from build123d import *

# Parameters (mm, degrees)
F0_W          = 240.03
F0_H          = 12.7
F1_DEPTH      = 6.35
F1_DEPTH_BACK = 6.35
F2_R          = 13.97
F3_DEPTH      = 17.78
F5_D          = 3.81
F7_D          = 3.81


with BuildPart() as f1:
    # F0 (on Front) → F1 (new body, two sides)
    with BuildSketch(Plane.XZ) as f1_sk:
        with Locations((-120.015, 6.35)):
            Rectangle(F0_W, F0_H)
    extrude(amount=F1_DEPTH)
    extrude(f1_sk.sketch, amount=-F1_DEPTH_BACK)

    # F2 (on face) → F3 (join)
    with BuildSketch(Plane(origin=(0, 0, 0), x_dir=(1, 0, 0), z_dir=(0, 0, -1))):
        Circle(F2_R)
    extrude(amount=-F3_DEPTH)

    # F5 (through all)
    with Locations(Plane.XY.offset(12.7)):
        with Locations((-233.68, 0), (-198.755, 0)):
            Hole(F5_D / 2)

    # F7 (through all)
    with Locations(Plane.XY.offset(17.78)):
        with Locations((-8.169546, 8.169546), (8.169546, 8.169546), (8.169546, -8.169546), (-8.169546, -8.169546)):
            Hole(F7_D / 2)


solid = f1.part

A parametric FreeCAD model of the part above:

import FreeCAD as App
import Part
import Sketcher
from FreeCAD import Vector
Q = App.Units.Quantity


def add_polygon(sketch, points):
    """Adds a closed chain of lines whose ends are joined by coincident constraints."""
    first, n = sketch.GeometryCount, len(points)
    for a, b in zip(points, points[1:] + points[:1]):
        sketch.addGeometry(Part.LineSegment(App.Vector(*a, 0), App.Vector(*b, 0)), False)
    for i in range(n):
        sketch.addConstraint(Sketcher.Constraint("Coincident", first + i, 2, first + (i + 1) % n, 1))

doc = App.newDocument("Part")
body = doc.addObject("PartDesign::Body", "Body")

# Sketch on XZ plane
sketch1 = doc.addObject("Sketcher::SketchObject", "Sketch")
body.addObject(sketch1)
sketch1.AttachmentSupport = (doc.XZ_Plane, [""])
sketch1.MapMode = "FlatFace"
add_polygon(sketch1, [(-240.03, 12.7), (-240.03, 0), (0, 0), (0, 12.7)])  # lines 0-3
sketch1.addConstraint(Sketcher.Constraint("Vertical", 0))
sketch1.addConstraint(Sketcher.Constraint("Horizontal", 1))
sketch1.addConstraint(Sketcher.Constraint("Vertical", 2))
sketch1.addConstraint(Sketcher.Constraint("Horizontal", 3))
sketch1.addConstraint(Sketcher.Constraint("Coincident", 1, 2, -1, 1))
sketch1.addConstraint(Sketcher.Constraint("DistanceY", 0, 2, 0, 1, Q("0.5 in")))
sketch1.addConstraint(Sketcher.Constraint("DistanceX", 1, 1, 1, 2, Q("9.45 in")))
pad1 = doc.addObject("PartDesign::Pad", "Pad")
body.addObject(pad1)
pad1.Profile = sketch1
pad1.Type = "TwoLengths"
pad1.Length = Q("0.25 in")
pad1.Length2 = Q("0.25 in")

# Sketch on XY plane
sketch2 = doc.addObject("Sketcher::SketchObject", "Sketch001")
body.addObject(sketch2)
sketch2.AttachmentSupport = (doc.XY_Plane, [""])
sketch2.MapMode = "FlatFace"
sketch2.addGeometry(Part.Circle(Vector(0, 0, 0), Vector(0, 0, 1), 13.97), False)
sketch2.addConstraint(Sketcher.Constraint("Coincident", 0, 3, -1, 1))
sketch2.addConstraint(Sketcher.Constraint("Diameter", 0, Q("1.1 in")))
pad2 = doc.addObject("PartDesign::Pad", "Pad001")
body.addObject(pad2)
pad2.Profile = sketch2
pad2.Length = Q("0.7 in")

# Sketch on XY plane
sketch3 = doc.addObject("Sketcher::SketchObject", "Sketch002")
body.addObject(sketch3)
sketch3.AttachmentSupport = (doc.XY_Plane, [""])
sketch3.MapMode = "FlatFace"
sketch3.AttachmentOffset = App.Placement(Vector(0, 0, 0.5 * 25.4), App.Rotation())
sketch3.addGeometry(Part.Circle(Vector(-233.68, 0, 0), Vector(0, 0, 1), 1.905), False)
sketch3.addGeometry(Part.Circle(Vector(-198.755, 0, 0), Vector(0, 0, 1), 1.905), False)
sketch3.addConstraint(Sketcher.Constraint("Equal", 0, 1))
sketch3.addConstraint(Sketcher.Constraint("PointOnObject", 0, 3, -1))
sketch3.addConstraint(Sketcher.Constraint("PointOnObject", 1, 3, -1))
sketch3.addConstraint(Sketcher.Constraint("Diameter", 0, Q("0.15 in")))
sketch3.addConstraint(Sketcher.Constraint("DistanceX", 0, 3, -1, 1, Q("9.2 in")))
sketch3.addConstraint(Sketcher.Constraint("DistanceX", 1, 3, -1, 1, Q("7.825 in")))
doc.recompute()
hole = doc.addObject("PartDesign::Hole", "Hole")
body.addObject(hole)
hole.Profile = sketch3
hole.ThreadType = "None"
hole.Diameter = Q("0.15 in")
hole.DepthType = "ThroughAll"

# Sketch on XY plane
sketch4 = doc.addObject("Sketcher::SketchObject", "Sketch003")
body.addObject(sketch4)
sketch4.AttachmentSupport = (doc.XY_Plane, [""])
sketch4.MapMode = "FlatFace"
sketch4.AttachmentOffset = App.Placement(Vector(0, 0, 0.7 * 25.4), App.Rotation())
sketch4.addGeometry(Part.Circle(Vector(-8.169546, 8.169546, 0), Vector(0, 0, 1), 1.905), False)
sketch4.addGeometry(Part.Circle(Vector(8.169546, 8.169546, 0), Vector(0, 0, 1), 1.905), False)
sketch4.addGeometry(Part.Circle(Vector(8.169546, -8.169546, 0), Vector(0, 0, 1), 1.905), False)
sketch4.addGeometry(Part.Circle(Vector(-8.169546, -8.169546, 0), Vector(0, 0, 1), 1.905), False)
sketch4.addConstraint(Sketcher.Constraint("Equal", 0, 1))
sketch4.addConstraint(Sketcher.Constraint("Equal", 1, 2))
sketch4.addConstraint(Sketcher.Constraint("Equal", 2, 3))
sketch4.addConstraint(Sketcher.Constraint("Symmetric", 0, 3, 2, 3, -1, 1))
sketch4.addConstraint(Sketcher.Constraint("Symmetric", 1, 3, 3, 3, -1, 1))
sketch4.addConstraint(Sketcher.Constraint("Symmetric", 0, 3, 1, 3, -2))
sketch4.addConstraint(Sketcher.Constraint("Diameter", 0, Q("0.15 in")))
sketch4.addConstraint(Sketcher.Constraint("DistanceX", 0, 3, -1, 1, Q("8.169546 mm")))
sketch4.addConstraint(Sketcher.Constraint("DistanceY", -1, 1, 0, 3, Q("8.169546 mm")))
doc.recompute()
hole2 = doc.addObject("PartDesign::Hole", "Hole001")
body.addObject(hole2)
hole2.Profile = sketch4
hole2.ThreadType = "None"
hole2.Diameter = Q("0.15 in")
hole2.DepthType = "ThroughAll"

doc.recompute()
